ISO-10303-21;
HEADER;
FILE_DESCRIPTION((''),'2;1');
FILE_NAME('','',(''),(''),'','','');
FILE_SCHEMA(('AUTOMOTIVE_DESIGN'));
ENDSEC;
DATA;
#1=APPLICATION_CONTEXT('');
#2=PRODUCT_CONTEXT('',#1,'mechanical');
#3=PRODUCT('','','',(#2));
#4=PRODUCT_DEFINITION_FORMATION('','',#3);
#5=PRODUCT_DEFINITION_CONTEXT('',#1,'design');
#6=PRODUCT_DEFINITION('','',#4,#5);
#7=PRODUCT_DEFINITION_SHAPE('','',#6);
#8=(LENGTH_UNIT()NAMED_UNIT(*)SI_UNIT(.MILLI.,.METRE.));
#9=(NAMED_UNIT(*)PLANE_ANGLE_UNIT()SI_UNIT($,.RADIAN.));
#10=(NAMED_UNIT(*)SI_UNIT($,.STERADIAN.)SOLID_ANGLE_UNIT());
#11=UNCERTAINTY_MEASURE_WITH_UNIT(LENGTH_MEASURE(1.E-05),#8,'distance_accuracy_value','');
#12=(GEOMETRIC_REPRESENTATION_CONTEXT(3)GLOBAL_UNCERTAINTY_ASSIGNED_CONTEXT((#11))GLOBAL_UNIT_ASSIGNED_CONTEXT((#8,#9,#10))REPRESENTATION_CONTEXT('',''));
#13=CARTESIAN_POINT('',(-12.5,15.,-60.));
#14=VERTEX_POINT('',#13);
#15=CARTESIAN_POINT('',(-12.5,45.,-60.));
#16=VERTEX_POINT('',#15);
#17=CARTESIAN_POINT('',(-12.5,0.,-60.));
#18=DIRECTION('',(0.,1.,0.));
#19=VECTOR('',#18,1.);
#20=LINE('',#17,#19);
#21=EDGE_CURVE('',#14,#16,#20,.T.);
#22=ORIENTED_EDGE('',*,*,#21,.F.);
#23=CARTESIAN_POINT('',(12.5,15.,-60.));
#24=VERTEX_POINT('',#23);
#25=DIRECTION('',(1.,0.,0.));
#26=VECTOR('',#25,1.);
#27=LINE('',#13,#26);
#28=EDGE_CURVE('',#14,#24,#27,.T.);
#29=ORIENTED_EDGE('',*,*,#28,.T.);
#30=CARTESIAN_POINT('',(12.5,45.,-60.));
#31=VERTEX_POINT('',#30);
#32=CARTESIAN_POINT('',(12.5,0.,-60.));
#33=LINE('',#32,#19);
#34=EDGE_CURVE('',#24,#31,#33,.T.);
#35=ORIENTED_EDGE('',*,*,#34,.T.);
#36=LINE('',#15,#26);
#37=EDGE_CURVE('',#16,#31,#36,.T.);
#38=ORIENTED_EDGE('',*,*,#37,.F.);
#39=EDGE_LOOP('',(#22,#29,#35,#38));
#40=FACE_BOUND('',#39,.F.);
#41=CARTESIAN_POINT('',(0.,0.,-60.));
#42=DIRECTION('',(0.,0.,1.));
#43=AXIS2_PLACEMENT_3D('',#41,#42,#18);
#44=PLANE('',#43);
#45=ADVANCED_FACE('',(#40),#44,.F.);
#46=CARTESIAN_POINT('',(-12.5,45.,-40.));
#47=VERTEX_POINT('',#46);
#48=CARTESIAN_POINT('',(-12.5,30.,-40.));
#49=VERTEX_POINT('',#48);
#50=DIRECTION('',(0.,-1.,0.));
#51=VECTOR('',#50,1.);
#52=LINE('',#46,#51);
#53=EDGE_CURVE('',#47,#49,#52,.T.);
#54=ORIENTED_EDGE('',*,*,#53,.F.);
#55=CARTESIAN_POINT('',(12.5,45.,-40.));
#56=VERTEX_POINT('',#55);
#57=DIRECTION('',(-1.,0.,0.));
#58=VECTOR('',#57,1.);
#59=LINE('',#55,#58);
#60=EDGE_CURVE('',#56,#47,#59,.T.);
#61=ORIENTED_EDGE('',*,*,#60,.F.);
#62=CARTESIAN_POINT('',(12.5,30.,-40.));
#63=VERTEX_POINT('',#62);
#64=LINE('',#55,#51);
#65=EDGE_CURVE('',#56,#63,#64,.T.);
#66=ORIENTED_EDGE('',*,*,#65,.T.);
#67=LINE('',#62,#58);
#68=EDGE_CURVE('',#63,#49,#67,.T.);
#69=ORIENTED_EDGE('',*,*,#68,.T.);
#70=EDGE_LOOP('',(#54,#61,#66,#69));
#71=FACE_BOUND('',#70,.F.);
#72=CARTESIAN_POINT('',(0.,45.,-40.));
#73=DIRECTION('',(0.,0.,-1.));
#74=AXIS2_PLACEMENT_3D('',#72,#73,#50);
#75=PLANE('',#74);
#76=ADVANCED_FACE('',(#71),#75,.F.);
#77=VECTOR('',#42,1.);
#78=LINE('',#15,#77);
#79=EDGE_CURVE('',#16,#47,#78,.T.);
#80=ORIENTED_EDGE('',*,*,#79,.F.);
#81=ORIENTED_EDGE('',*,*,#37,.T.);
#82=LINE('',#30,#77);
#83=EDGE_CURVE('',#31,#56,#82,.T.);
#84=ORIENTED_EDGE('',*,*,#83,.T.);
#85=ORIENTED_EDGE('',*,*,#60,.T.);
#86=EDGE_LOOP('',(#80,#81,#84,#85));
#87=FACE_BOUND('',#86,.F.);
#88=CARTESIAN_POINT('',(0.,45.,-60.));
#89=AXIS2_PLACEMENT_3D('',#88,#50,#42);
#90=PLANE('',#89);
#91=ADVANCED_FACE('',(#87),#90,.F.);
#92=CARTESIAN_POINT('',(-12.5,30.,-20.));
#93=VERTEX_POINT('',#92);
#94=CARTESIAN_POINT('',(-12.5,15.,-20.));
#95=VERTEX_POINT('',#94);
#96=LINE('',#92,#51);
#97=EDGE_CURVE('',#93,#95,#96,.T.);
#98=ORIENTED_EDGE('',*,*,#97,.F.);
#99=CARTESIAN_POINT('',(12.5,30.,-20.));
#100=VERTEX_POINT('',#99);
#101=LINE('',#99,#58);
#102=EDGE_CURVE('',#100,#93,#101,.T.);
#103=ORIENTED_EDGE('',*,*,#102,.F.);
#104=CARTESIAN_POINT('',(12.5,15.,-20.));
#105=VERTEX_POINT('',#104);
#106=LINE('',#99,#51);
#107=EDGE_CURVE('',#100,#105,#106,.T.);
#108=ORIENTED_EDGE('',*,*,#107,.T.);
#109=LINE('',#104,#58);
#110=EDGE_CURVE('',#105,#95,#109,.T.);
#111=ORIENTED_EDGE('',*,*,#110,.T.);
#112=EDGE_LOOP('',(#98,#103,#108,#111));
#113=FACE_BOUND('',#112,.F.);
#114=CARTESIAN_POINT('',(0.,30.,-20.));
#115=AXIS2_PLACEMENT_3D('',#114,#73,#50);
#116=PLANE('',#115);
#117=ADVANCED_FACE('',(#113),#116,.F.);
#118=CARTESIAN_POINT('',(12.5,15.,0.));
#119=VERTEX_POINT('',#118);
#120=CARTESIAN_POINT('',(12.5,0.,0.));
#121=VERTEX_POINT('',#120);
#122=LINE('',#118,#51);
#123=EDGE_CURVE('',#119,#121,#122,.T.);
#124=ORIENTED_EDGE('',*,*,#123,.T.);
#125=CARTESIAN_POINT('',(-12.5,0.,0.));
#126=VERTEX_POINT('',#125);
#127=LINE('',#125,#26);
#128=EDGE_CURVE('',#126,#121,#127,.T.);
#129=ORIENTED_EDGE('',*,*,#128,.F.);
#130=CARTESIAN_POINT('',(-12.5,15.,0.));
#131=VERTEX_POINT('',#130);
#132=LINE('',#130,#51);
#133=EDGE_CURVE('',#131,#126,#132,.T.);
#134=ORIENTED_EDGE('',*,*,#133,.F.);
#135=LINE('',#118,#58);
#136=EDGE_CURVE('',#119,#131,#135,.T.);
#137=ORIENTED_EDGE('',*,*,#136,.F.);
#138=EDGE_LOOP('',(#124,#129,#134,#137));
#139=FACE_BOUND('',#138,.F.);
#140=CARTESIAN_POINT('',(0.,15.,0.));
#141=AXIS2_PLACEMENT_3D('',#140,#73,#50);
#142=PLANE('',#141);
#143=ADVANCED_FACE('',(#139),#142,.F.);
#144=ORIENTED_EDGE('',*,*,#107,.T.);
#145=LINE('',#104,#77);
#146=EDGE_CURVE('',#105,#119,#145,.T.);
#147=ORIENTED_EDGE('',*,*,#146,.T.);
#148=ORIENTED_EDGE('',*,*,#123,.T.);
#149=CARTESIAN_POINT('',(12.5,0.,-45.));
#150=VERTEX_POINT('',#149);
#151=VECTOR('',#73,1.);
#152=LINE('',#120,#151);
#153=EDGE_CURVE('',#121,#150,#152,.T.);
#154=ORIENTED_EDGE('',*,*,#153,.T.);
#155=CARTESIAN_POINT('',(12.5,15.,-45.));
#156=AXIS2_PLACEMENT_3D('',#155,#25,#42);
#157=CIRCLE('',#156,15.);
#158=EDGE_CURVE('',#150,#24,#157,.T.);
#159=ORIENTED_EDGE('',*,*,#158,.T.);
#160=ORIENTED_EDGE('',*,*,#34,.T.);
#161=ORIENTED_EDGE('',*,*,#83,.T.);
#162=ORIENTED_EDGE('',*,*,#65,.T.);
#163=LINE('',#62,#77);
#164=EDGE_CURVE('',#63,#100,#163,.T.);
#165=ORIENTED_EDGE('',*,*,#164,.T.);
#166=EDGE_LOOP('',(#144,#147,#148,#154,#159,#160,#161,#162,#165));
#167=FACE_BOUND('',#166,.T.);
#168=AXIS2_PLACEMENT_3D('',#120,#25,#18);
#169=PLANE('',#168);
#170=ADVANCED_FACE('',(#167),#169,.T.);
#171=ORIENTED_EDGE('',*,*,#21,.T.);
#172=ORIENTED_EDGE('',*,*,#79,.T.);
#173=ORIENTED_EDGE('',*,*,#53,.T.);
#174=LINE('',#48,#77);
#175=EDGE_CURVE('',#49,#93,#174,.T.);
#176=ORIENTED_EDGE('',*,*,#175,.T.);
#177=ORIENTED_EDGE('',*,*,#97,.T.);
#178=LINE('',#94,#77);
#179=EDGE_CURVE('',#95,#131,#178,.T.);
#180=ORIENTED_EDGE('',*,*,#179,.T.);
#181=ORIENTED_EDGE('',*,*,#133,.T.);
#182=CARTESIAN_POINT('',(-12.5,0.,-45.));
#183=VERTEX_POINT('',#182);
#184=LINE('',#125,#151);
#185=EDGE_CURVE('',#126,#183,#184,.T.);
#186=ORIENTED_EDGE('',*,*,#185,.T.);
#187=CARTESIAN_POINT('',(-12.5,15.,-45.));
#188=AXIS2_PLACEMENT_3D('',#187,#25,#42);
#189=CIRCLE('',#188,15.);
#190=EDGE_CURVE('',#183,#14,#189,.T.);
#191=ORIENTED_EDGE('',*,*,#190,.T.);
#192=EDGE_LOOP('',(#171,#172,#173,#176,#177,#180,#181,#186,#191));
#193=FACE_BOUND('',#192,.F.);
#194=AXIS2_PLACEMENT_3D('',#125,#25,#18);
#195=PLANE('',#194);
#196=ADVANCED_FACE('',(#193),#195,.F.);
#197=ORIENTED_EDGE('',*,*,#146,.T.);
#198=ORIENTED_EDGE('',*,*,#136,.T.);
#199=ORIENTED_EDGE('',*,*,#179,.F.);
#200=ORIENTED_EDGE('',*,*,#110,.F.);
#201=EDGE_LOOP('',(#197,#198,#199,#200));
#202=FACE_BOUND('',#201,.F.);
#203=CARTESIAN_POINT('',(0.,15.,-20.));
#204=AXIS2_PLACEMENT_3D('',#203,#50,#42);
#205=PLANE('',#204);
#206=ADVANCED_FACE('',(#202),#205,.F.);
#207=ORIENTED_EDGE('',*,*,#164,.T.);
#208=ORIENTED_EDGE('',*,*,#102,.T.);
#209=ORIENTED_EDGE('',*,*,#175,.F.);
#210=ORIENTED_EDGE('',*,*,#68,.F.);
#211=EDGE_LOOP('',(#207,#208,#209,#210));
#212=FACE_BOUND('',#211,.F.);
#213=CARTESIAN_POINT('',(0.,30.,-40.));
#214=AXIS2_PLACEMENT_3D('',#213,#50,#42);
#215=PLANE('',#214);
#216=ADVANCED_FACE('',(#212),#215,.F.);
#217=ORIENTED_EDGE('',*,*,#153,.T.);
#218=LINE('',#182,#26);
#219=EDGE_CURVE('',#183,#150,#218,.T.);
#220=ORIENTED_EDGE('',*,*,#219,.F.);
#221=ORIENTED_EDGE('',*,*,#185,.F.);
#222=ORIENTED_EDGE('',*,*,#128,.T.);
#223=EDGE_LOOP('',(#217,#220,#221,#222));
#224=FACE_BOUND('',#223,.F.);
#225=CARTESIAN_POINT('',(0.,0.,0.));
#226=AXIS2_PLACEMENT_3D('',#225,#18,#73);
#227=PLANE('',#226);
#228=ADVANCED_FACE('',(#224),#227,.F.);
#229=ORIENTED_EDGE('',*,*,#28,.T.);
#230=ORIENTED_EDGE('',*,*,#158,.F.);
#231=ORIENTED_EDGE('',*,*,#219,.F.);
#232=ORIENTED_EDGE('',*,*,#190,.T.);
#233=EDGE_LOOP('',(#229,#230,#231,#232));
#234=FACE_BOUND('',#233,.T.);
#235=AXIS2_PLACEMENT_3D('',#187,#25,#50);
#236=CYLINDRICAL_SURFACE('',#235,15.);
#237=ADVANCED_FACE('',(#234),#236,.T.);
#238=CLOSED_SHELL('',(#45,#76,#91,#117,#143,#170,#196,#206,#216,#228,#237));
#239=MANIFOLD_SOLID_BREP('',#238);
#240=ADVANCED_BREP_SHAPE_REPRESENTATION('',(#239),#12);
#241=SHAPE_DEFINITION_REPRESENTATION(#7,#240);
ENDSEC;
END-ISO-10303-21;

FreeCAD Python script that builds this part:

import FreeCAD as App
import Part
import Sketcher

V = App.Vector
Q = App.Units.Quantity


def edges_at(feature, points):
    """Names of the edges that pass closest to the given points."""
    edges = feature.Shape.Edges
    near = lambda p: min(range(len(edges)), key=lambda i: edges[i].distToShape(Part.Vertex(*p))[0])
    return sorted({f"Edge{near(p) + 1}" for p in points})


def add_polygon(sketch, points):
    """Adds a closed chain of lines whose ends are joined by coincident constraints."""
    first, n = sketch.GeometryCount, len(points)
    for a, b in zip(points, points[1:] + points[:1]):
        sketch.addGeometry(Part.LineSegment(App.Vector(*a, 0), App.Vector(*b, 0)), False)
    for i in range(n):
        sketch.addConstraint(Sketcher.Constraint("Coincident", first + i, 2, first + (i + 1) % n, 1))

doc = App.newDocument("Part")
params = doc.addObject("Spreadsheet::Sheet", "Params")
for row, (alias, value) in enumerate([
    ("sketch1_width", "15 mm"),
    ("sketch1_height", "60 mm"),
    ("pad1_length", "25 mm"),
    ("fillet_radius", "15 mm"),
], start=1):
    params.set(f"A{row}", alias)
    params.set(f"B{row}", "=" + value)
    params.setAlias(f"B{row}", alias)

body = doc.addObject("PartDesign::Body", "Body")

# Sketch on YZ plane
sketch1 = body.newObject("Sketcher::SketchObject", "Sketch")
sketch1.AttachmentSupport = (doc.getObject("YZ_Plane"), [""])
sketch1.MapMode = "FlatFace"
add_polygon(sketch1, [(15, 0), (0, 0), (0, -60), (45, -60), (45, -40), (30, -40), (30, -20), (15, -20)])  # lines 0-7
sketch1.addConstraint([
    Sketcher.Constraint("Horizontal", 0),
    Sketcher.Constraint("Vertical", 1),
    Sketcher.Constraint("Horizontal", 2),
    Sketcher.Constraint("Vertical", 3),
    Sketcher.Constraint("Horizontal", 4),
    Sketcher.Constraint("Vertical", 5),
    Sketcher.Constraint("Horizontal", 6),
    Sketcher.Constraint("Vertical", 7),
    Sketcher.Constraint("Coincident", 0, 2, -1, 1),
    Sketcher.Constraint("Equal", 0, 4),
    Sketcher.Constraint("Equal", 4, 6),
    Sketcher.Constraint("Equal", 3, 5),
    Sketcher.Constraint("Equal", 5, 7),
    Sketcher.Constraint("DistanceX", 0, 2, 0, 1, Q("15 mm")),
    Sketcher.Constraint("DistanceY", 1, 2, 1, 1, Q("60 mm")),
])
sketch1.setExpression("Constraints[21]", "Params.sketch1_width")
sketch1.setExpression("Constraints[22]", "Params.sketch1_height")
pad1 = body.newObject("PartDesign::Pad", "Pad")
pad1.Profile = sketch1
pad1.setExpression("Length", "Params.pad1_length")
pad1.Midplane = True
doc.recompute()

fillet = body.newObject("PartDesign::Fillet", "Fillet")
fillet.Base = (pad1, edges_at(pad1, [(0, 0, -60)]))
fillet.setExpression("Radius", "Params.fillet_radius")

doc.recompute()
